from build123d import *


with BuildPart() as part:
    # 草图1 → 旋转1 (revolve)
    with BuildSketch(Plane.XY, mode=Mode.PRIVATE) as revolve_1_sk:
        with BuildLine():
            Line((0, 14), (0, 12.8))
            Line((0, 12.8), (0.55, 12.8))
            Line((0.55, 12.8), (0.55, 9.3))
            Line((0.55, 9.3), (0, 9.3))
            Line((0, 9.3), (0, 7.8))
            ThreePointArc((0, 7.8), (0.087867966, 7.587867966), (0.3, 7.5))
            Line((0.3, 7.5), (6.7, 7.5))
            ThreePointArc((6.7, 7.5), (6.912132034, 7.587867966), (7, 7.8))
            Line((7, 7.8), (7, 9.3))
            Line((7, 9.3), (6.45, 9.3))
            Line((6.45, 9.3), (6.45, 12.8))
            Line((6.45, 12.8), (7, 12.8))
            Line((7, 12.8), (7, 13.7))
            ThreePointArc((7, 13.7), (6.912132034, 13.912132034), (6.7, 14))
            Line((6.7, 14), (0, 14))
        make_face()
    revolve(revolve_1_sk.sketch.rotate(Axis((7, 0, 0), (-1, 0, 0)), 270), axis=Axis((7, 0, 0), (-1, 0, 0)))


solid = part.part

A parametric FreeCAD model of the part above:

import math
import FreeCAD as App
import Part
import Sketcher
Q = App.Units.Quantity

doc = App.newDocument("Part")
params = doc.addObject("Spreadsheet::Sheet", "Params")
for row, (alias, value) in enumerate([
    ("sketch1_radius", "0.3 mm"),
    ("sketch1_width", "6.4 mm"),
    ("sketch1_height", "1.2 mm"),
    ("sketch1_height2", "3.5 mm"),
    ("sketch1_height3", "1.5 mm"),
    ("revolution_angle", "360 deg"),
], start=1):
    params.set(f"A{row}", alias)
    params.set(f"B{row}", "=" + value)
    params.setAlias(f"B{row}", alias)

body = doc.addObject("PartDesign::Body", "Body")

# Sketch on XY plane
sketch1 = body.newObject("Sketcher::SketchObject", "Sketch")
sketch1.AttachmentSupport = (doc.getObject("XY_Plane"), [""])
sketch1.MapMode = "FlatFace"
sketch1.addGeometry([
    Part.LineSegment(App.Vector(0, 14, 0), App.Vector(0, 12.8, 0)),  # 0
    Part.LineSegment(App.Vector(0, 12.8, 0), App.Vector(0.55, 12.8, 0)),  # 1
    Part.LineSegment(App.Vector(0.55, 12.8, 0), App.Vector(0.55, 9.3, 0)),  # 2
    Part.LineSegment(App.Vector(0.55, 9.3, 0), App.Vector(0, 9.3, 0)),  # 3
    Part.LineSegment(App.Vector(0, 9.3, 0), App.Vector(0, 7.8, 0)),  # 4
    Part.ArcOfCircle(Part.Circle(App.Vector(0.3, 7.8, 0), App.Vector(0, 0, 1), 0.3), math.radians(-180), math.radians(-90)),  # 5
    Part.LineSegment(App.Vector(0.3, 7.5, 0), App.Vector(6.7, 7.5, 0)),  # 6
    Part.ArcOfCircle(Part.Circle(App.Vector(6.7, 7.8, 0), App.Vector(0, 0, 1), 0.3), math.radians(-90), math.radians(0)),  # 7
    Part.LineSegment(App.Vector(7, 7.8, 0), App.Vector(7, 9.3, 0)),  # 8
    Part.LineSegment(App.Vector(7, 9.3, 0), App.Vector(6.45, 9.3, 0)),  # 9
    Part.LineSegment(App.Vector(6.45, 9.3, 0), App.Vector(6.45, 12.8, 0)),  # 10
    Part.LineSegment(App.Vector(6.45, 12.8, 0), App.Vector(7, 12.8, 0)),  # 11
    Part.LineSegment(App.Vector(7, 12.8, 0), App.Vector(7, 13.7, 0)),  # 12
    Part.ArcOfCircle(Part.Circle(App.Vector(6.7, 13.7, 0), App.Vector(0, 0, 1), 0.3), math.radians(0), math.radians(90)),  # 13
    Part.LineSegment(App.Vector(6.7, 14, 0), App.Vector(0, 14, 0)),  # 14
], False)
sketch1.addConstraint([
    Sketcher.Constraint("Coincident", 0, 2, 1, 1),
    Sketcher.Constraint("Coincident", 1, 2, 2, 1),
    Sketcher.Constraint("Coincident", 2, 2, 3, 1),
    Sketcher.Constraint("Coincident", 3, 2, 4, 1),
    Sketcher.Constraint("Tangent", 4, 2, 5, 1),
    Sketcher.Constraint("Tangent", 5, 2, 6, 1),
    Sketcher.Constraint("Tangent", 6, 2, 7, 1),
    Sketcher.Constraint("Tangent", 7, 2, 8, 1),
    Sketcher.Constraint("Coincident", 8, 2, 9, 1),
    Sketcher.Constraint("Coincident", 9, 2, 10, 1),
    Sketcher.Constraint("Coincident", 10, 2, 11, 1),
    Sketcher.Constraint("Coincident", 11, 2, 12, 1),
    Sketcher.Constraint("Tangent", 12, 2, 13, 1),
    Sketcher.Constraint("Tangent", 13, 2, 14, 1),
    Sketcher.Constraint("Coincident", 14, 2, 0, 1),
    Sketcher.Constraint("Vertical", 0),
    Sketcher.Constraint("Horizontal", 1),
    Sketcher.Constraint("Vertical", 2),
    Sketcher.Constraint("Horizontal", 3),
    Sketcher.Constraint("Vertical", 4),
    Sketcher.Constraint("Horizontal", 6),
    Sketcher.Constraint("Vertical", 8),
    Sketcher.Constraint("Horizontal", 9),
    Sketcher.Constraint("Vertical", 10),
    Sketcher.Constraint("Horizontal", 11),
    Sketcher.Constraint("Vertical", 12),
    Sketcher.Constraint("Horizontal", 14),
    Sketcher.Constraint("Equal", 5, 7),
    Sketcher.Constraint("Equal", 7, 13),
    Sketcher.Constraint("PointOnObject", 0, 2, -2),
    Sketcher.Constraint("PointOnObject", 3, 2, -2),
    Sketcher.Constraint("Horizontal", 3, 2, 8, 2),
    Sketcher.Constraint("Horizontal", 1, 2, 10, 2),
    Sketcher.Constraint("Vertical", 7, 3, 13, 3),
    Sketcher.Constraint("Equal", 3, 9),
    Sketcher.Constraint("Radius", 5, Q("0.3 mm")),
    Sketcher.Constraint("DistanceX", 6, 1, 6, 2, Q("6.4 mm")),
    Sketcher.Constraint("DistanceY", 0, 2, 0, 1, Q("1.2 mm")),
    Sketcher.Constraint("DistanceY", 2, 2, 2, 1, Q("3.5 mm")),
    Sketcher.Constraint("DistanceY", 4, 2, 4, 1, Q("1.5 mm")),
    Sketcher.Constraint("DistanceY", -1, 1, 13, 2, Q("14 mm")),
    Sketcher.Constraint("DistanceX", 1, 1, 1, 2, Q("0.55 mm")),
])
sketch1.setExpression("Constraints[35]", "Params.sketch1_radius")
sketch1.setExpression("Constraints[36]", "Params.sketch1_width")
sketch1.setExpression("Constraints[37]", "Params.sketch1_height")
sketch1.setExpression("Constraints[38]", "Params.sketch1_height2")
sketch1.setExpression("Constraints[39]", "Params.sketch1_height3")
revolution = body.newObject("PartDesign::Revolution", "Revolution")
revolution.Profile = sketch1
revolution.ReferenceAxis = (sketch1, ["H_Axis"])
revolution.setExpression("Angle", "Params.revolution_angle")

doc.recompute()
